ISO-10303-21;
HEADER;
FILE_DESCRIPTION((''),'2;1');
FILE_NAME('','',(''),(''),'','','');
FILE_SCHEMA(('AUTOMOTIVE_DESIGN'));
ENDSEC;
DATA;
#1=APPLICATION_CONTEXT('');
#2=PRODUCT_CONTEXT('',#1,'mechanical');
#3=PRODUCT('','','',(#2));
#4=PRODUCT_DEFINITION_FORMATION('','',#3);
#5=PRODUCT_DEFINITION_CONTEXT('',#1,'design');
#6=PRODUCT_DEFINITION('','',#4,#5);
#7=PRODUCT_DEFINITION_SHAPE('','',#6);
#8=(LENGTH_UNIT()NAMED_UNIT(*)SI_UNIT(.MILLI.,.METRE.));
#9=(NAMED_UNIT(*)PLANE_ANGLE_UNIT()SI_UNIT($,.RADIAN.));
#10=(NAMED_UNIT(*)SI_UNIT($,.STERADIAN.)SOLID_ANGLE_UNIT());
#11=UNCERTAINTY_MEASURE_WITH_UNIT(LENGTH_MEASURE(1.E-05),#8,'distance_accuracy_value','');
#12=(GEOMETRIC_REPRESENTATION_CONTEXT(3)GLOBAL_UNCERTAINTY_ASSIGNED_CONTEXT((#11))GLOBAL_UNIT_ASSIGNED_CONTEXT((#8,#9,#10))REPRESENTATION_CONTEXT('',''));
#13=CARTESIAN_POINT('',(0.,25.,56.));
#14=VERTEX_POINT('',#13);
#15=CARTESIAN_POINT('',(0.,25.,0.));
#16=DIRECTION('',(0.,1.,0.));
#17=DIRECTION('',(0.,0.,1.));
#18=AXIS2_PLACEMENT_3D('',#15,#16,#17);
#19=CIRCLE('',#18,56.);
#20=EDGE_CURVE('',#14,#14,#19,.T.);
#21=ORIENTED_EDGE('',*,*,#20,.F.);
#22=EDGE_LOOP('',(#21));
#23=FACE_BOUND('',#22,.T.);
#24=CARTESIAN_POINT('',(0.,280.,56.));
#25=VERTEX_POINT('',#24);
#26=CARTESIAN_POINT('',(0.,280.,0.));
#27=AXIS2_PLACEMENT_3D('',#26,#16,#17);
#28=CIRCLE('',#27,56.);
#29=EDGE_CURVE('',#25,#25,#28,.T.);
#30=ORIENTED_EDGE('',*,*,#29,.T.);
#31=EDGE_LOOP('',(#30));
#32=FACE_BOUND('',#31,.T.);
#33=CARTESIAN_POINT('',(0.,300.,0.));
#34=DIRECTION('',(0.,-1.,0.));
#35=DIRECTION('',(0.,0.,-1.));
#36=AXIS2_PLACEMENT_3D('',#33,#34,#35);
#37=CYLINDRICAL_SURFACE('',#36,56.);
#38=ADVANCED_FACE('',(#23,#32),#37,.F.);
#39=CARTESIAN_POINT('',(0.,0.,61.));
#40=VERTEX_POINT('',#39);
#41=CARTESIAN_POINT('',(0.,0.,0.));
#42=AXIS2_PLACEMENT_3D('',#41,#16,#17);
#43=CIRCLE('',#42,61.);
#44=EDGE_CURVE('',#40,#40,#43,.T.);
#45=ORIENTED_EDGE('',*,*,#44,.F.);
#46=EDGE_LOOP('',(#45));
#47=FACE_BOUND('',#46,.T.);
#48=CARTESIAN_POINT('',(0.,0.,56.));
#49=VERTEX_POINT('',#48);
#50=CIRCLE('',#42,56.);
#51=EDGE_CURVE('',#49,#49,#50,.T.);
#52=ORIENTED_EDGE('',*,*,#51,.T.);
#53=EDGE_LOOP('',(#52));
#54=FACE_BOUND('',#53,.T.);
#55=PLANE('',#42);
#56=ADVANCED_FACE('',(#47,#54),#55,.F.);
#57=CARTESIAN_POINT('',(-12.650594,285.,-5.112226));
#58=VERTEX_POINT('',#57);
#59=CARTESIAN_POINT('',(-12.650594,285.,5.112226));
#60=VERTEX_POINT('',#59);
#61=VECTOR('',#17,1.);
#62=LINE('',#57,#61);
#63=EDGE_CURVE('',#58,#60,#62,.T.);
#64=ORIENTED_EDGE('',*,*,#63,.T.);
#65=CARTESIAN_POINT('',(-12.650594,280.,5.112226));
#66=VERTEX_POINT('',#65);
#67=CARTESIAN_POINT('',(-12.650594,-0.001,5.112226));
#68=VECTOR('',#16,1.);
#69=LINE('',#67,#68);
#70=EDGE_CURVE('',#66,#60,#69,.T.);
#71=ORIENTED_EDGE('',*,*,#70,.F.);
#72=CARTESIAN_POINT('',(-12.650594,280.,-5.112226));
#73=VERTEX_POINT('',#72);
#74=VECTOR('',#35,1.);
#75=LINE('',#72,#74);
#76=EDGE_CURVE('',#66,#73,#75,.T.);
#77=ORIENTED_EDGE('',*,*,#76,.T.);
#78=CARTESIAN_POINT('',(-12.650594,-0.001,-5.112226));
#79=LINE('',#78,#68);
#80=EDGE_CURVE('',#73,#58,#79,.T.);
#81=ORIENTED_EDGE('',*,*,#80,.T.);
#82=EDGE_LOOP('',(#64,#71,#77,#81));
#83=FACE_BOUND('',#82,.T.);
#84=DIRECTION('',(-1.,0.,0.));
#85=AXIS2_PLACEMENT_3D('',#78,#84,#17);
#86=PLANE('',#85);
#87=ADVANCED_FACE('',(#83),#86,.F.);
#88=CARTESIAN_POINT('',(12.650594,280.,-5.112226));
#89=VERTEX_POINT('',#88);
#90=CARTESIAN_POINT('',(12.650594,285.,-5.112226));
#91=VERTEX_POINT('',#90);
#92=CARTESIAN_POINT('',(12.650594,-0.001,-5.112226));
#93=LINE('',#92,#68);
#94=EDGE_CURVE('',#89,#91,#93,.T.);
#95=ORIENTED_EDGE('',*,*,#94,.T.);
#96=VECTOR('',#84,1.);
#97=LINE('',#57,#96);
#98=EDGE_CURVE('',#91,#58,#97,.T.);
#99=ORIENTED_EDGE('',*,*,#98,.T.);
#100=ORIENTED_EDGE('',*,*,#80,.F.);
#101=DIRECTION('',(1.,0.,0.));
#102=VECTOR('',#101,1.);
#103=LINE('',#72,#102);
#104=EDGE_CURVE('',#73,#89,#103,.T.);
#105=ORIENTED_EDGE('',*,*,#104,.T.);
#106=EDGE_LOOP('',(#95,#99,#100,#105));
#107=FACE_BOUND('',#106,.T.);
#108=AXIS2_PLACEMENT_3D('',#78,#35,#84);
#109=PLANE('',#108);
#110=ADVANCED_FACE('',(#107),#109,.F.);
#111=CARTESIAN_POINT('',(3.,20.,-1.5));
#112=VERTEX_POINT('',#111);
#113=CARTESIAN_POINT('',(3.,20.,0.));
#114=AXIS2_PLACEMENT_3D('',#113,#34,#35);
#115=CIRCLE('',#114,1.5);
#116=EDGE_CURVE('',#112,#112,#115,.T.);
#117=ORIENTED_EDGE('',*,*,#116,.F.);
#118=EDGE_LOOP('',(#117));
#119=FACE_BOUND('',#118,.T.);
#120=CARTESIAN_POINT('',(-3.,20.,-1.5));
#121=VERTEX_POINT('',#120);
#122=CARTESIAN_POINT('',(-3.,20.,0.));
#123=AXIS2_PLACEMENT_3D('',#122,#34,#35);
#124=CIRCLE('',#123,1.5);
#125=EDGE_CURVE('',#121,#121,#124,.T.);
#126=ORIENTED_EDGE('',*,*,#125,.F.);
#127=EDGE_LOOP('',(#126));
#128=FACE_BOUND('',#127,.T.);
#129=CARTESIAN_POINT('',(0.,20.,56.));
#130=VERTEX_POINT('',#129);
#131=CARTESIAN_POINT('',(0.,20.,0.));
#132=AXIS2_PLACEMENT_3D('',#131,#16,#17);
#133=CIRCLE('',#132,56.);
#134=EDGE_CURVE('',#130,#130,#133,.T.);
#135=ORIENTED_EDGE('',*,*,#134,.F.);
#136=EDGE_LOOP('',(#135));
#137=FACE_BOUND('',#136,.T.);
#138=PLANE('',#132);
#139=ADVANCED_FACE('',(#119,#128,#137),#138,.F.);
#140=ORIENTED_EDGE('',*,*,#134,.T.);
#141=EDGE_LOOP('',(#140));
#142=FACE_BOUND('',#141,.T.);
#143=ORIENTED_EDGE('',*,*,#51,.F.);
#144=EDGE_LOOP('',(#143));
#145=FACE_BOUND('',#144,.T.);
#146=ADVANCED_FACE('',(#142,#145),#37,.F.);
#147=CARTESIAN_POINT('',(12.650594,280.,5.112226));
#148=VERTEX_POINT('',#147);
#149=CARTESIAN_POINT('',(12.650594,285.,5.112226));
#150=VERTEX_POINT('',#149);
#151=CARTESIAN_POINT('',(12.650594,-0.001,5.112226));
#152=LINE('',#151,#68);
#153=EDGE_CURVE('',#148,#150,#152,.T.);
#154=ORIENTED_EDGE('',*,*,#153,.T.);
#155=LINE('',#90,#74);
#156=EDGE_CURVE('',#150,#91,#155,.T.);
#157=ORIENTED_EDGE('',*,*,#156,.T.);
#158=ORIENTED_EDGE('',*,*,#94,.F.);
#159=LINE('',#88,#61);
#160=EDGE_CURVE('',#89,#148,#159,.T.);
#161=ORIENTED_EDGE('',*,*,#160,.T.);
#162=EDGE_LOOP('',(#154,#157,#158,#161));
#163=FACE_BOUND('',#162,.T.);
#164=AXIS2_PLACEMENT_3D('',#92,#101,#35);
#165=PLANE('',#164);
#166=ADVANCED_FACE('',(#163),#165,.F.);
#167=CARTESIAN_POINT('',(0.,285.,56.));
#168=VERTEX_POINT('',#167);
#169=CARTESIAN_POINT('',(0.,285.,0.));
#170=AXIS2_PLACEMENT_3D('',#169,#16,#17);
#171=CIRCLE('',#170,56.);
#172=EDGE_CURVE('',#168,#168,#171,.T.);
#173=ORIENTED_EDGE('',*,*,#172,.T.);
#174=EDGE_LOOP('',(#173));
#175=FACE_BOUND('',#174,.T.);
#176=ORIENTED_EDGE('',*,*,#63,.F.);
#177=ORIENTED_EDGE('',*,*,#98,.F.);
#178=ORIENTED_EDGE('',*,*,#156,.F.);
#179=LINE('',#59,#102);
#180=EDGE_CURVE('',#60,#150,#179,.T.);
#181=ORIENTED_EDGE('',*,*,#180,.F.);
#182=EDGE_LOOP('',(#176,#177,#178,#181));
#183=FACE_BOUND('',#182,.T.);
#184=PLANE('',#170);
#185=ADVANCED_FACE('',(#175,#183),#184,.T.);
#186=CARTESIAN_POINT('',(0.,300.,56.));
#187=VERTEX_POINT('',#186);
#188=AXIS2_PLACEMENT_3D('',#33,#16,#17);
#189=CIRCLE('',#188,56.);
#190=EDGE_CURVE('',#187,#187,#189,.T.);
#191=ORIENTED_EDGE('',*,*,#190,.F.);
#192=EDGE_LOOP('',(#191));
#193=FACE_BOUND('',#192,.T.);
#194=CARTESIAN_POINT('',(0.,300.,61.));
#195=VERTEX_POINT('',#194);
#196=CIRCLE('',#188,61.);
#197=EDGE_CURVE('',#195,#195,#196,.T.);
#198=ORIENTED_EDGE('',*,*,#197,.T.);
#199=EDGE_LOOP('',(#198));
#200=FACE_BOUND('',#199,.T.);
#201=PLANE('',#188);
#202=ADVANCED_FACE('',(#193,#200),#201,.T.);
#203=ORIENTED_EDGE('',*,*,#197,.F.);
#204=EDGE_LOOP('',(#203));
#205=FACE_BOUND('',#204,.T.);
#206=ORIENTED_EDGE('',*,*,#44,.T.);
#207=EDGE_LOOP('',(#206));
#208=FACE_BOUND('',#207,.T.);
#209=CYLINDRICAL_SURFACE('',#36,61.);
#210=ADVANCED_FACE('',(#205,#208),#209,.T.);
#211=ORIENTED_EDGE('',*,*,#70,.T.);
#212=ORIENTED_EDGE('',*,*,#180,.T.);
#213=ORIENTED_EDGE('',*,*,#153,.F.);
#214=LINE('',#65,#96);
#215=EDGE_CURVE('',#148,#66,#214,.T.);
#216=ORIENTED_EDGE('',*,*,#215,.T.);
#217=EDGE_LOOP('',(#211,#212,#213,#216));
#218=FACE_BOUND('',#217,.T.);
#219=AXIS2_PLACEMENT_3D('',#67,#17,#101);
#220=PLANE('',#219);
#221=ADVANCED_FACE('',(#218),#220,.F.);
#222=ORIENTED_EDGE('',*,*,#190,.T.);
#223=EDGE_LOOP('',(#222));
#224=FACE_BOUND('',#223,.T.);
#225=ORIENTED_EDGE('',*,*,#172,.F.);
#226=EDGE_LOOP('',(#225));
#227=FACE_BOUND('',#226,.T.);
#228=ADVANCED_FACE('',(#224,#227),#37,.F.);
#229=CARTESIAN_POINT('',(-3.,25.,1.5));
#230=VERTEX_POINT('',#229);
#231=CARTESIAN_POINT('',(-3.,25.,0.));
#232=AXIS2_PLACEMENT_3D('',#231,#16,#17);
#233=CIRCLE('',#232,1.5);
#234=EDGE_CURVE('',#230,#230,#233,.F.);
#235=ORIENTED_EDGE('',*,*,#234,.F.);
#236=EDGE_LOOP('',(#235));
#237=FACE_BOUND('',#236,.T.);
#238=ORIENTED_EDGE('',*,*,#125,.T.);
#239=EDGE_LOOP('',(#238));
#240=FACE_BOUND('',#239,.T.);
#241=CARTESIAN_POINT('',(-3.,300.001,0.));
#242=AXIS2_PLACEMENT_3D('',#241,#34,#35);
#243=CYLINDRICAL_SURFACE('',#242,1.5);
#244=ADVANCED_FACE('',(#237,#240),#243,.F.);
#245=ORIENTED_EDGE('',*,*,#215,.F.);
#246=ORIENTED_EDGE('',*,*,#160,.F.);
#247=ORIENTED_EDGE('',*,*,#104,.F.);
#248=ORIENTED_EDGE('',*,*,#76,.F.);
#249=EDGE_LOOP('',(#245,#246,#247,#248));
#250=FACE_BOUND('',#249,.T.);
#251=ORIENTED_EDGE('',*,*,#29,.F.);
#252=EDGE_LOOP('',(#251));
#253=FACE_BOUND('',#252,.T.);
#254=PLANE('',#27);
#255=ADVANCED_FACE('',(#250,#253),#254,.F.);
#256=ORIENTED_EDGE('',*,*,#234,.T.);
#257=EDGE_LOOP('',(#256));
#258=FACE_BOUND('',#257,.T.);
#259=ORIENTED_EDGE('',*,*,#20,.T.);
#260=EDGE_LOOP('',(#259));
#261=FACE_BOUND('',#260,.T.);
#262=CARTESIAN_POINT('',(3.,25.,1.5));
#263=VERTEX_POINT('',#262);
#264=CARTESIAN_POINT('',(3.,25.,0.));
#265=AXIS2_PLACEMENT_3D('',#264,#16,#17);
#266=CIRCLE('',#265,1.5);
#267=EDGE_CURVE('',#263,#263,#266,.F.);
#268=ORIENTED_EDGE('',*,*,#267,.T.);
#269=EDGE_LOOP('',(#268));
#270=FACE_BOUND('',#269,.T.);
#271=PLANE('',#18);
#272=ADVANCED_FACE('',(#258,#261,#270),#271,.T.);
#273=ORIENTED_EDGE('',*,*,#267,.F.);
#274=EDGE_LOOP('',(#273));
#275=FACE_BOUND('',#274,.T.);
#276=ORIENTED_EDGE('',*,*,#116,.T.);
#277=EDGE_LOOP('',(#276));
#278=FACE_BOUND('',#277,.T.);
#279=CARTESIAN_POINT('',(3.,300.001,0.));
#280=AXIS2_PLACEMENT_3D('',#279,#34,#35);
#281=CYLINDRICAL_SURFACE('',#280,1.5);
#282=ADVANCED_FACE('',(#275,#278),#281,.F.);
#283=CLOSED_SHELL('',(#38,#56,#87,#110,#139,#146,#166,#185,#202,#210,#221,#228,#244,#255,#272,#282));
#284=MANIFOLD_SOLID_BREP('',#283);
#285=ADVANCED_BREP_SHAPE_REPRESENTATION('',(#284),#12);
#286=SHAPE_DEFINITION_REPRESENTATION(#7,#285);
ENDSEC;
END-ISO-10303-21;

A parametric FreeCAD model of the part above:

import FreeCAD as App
import Part
import Sketcher

V = App.Vector


def add_polygon(sketch, points):
    """Adds a closed chain of lines whose ends are joined by coincident constraints."""
    first, n = sketch.GeometryCount, len(points)
    for a, b in zip(points, points[1:] + points[:1]):
        sketch.addGeometry(Part.LineSegment(App.Vector(*a, 0), App.Vector(*b, 0)), False)
    for i in range(n):
        sketch.addConstraint(Sketcher.Constraint("Coincident", first + i, 2, first + (i + 1) % n, 1))

doc = App.newDocument("Part")
params = doc.addObject("Spreadsheet::Sheet", "Params")
for row, (alias, value) in enumerate([
    ("sketch1_diameter", "122 mm"),
    ("sketch1_diameter2", "112 mm"),
    ("pad1_length", "300 mm"),
    ("sketch2_diameter", "112 mm"),
    ("pad2_length", "5 mm"),
    ("sketch3_diameter", "3 mm"),
    ("sketch4_diameter", "3 mm"),
    ("sketch5_diameter", "112 mm"),
    ("pad3_length", "5 mm"),
], start=1):
    params.set(f"A{row}", alias)
    params.set(f"B{row}", "=" + value)
    params.setAlias(f"B{row}", alias)

body = doc.addObject("PartDesign::Body", "Body")

# Sketch on XZ plane
sketch1 = body.newObject("Sketcher::SketchObject", "Sketch")
sketch1.AttachmentSupport = (doc.getObject("XZ_Plane"), [""])
sketch1.MapMode = "FlatFace"
sketch1.addGeometry([
    Part.Circle(V(0, 0, 0), V(0, 0, 1), 61),
    Part.Circle(V(0, 0, 0), V(0, 0, 1), 56),
], False)
sketch1.addConstraint([
    Sketcher.Constraint("Coincident", 0, 3, -1, 1),
    Sketcher.Constraint("Coincident", 1, 3, -1, 1),
    Sketcher.Constraint("Diameter", 0, 122.0),
    Sketcher.Constraint("Diameter", 1, 112.0),
])
sketch1.setExpression("Constraints[2]", "Params.sketch1_diameter")
sketch1.setExpression("Constraints[3]", "Params.sketch1_diameter2")
pad1 = body.newObject("PartDesign::Pad", "Pad")
pad1.Profile = sketch1
pad1.setExpression("Length", "Params.pad1_length")
pad1.Reversed = True

# Sketch on XZ plane
sketch2 = body.newObject("Sketcher::SketchObject", "Sketch001")
sketch2.AttachmentSupport = (doc.getObject("XZ_Plane"), [""])
sketch2.MapMode = "FlatFace"
sketch2.AttachmentOffset = App.Placement(V(0, 0, -20), App.Rotation())
sketch2.addGeometry(Part.Circle(V(0, 0, 0), V(0, 0, 1), 56), False)
sketch2.addConstraint([
    Sketcher.Constraint("Coincident", 0, 3, -1, 1),
    Sketcher.Constraint("Diameter", 0, 112.0),
])
sketch2.setExpression("Constraints[1]", "Params.sketch2_diameter")
pad2 = body.newObject("PartDesign::Pad", "Pad001")
pad2.Profile = sketch2
pad2.setExpression("Length", "Params.pad2_length")
pad2.Reversed = True

# Sketch on XZ plane
sketch3 = body.newObject("Sketcher::SketchObject", "Sketch002")
sketch3.AttachmentSupport = (doc.getObject("XZ_Plane"), [""])
sketch3.MapMode = "FlatFace"
sketch3.AttachmentOffset = App.Placement(V(0, 0, -20), App.Rotation())
sketch3.addGeometry(Part.Circle(V(-3, 0, 0), V(0, 0, 1), 1.5), False)
sketch3.addConstraint([
    Sketcher.Constraint("PointOnObject", 0, 3, -1),
    Sketcher.Constraint("Diameter", 0, 3.0),
    Sketcher.Constraint("DistanceX", 0, 3, -1, 1, 3.0),
])
sketch3.setExpression("Constraints[1]", "Params.sketch3_diameter")
pocket1 = body.newObject("PartDesign::Pocket", "Pocket")
pocket1.Profile = sketch3
pocket1.Type = "UpToFirst"

# Sketch on XZ plane
sketch4 = body.newObject("Sketcher::SketchObject", "Sketch003")
sketch4.AttachmentSupport = (doc.getObject("XZ_Plane"), [""])
sketch4.MapMode = "FlatFace"
sketch4.AttachmentOffset = App.Placement(V(0, 0, -20), App.Rotation())
sketch4.addGeometry(Part.Circle(V(3, 0, 0), V(0, 0, 1), 1.5), False)
sketch4.addConstraint([
    Sketcher.Constraint("PointOnObject", 0, 3, -1),
    Sketcher.Constraint("Diameter", 0, 3.0),
    Sketcher.Constraint("DistanceX", -1, 1, 0, 3, 3.0),
])
sketch4.setExpression("Constraints[1]", "Params.sketch4_diameter")
pocket2 = body.newObject("PartDesign::Pocket", "Pocket001")
pocket2.Profile = sketch4
pocket2.Type = "UpToFirst"

# Sketch on XZ plane
sketch5 = body.newObject("Sketcher::SketchObject", "Sketch004")
sketch5.AttachmentSupport = (doc.getObject("XZ_Plane"), [""])
sketch5.MapMode = "FlatFace"
sketch5.AttachmentOffset = App.Placement(V(0, 0, -280), App.Rotation())
sketch5.addGeometry(Part.Circle(V(0, 0, 0), V(0, 0, 1), 56), False)
sketch5.addConstraint([
    Sketcher.Constraint("Coincident", 0, 3, -1, 1),
    Sketcher.Constraint("Diameter", 0, 112.0),
])
sketch5.setExpression("Constraints[1]", "Params.sketch5_diameter")
pad3 = body.newObject("PartDesign::Pad", "Pad002")
pad3.Profile = sketch5
pad3.setExpression("Length", "Params.pad3_length")
pad3.Reversed = True

# Sketch on XZ plane
sketch6 = body.newObject("Sketcher::SketchObject", "Sketch005")
sketch6.AttachmentSupport = (doc.getObject("XZ_Plane"), [""])
sketch6.MapMode = "FlatFace"
sketch6.AttachmentOffset = App.Placement(V(0, 0, -285), App.Rotation())
add_polygon(sketch6, [(-13, -5), (-13, 5), (13, 5), (13, -5)])  # lines 0-3
sketch6.addConstraint([
    Sketcher.Constraint("Vertical", 0),
    Sketcher.Constraint("Horizontal", 1),
    Sketcher.Constraint("Vertical", 2),
    Sketcher.Constraint("Horizontal", 3),
    Sketcher.Constraint("Symmetric", 0, 2, 2, 2, -1, 1),
    Sketcher.Constraint("DistanceX", 1, 1, 1, 2, 25.301187),
    Sketcher.Constraint("DistanceY", 0, 1, 0, 2, 10.224452),
])
pocket3 = body.newObject("PartDesign::Pocket", "Pocket002")
pocket3.Profile = sketch6
pocket3.Type = "UpToFirst"
pocket3.Reversed = True

doc.recompute()
